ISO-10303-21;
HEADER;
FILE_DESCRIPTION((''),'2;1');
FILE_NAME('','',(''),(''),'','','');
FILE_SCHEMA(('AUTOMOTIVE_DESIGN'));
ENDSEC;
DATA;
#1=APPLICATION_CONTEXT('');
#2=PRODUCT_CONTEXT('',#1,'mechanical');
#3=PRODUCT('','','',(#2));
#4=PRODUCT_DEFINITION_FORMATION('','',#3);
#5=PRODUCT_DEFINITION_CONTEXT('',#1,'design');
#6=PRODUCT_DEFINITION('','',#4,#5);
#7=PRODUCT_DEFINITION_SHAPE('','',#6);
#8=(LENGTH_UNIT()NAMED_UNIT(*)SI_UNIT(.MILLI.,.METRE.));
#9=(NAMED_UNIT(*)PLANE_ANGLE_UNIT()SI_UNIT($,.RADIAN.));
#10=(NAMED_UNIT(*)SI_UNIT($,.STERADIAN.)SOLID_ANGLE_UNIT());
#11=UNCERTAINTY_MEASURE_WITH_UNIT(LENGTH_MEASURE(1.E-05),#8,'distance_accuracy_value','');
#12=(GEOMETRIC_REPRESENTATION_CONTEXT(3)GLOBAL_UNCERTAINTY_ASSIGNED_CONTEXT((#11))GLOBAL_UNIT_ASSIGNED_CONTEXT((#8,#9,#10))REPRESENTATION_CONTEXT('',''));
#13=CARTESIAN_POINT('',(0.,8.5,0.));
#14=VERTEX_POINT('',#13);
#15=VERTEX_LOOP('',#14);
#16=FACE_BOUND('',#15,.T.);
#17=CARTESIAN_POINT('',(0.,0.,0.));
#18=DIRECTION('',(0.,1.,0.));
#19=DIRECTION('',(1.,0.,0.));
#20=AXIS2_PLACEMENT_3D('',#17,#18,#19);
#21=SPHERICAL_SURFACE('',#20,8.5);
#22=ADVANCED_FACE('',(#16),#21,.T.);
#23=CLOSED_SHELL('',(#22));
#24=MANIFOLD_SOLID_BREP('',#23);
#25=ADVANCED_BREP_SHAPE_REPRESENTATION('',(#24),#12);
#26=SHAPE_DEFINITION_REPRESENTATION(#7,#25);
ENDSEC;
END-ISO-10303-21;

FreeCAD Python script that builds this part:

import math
import FreeCAD as App
import Part
import Sketcher

V = App.Vector

doc = App.newDocument("Part")
body = doc.addObject("PartDesign::Body", "Body")

# Sketch on XY plane
sketch1 = body.newObject("Sketcher::SketchObject", "Sketch")
sketch1.AttachmentSupport = (doc.getObject("XY_Plane"), [""])
sketch1.MapMode = "FlatFace"
sketch1.addGeometry(Part.LineSegment(V(0, 8, 0), V(0, -8, 0)), False)
sketch1.addGeometry(Part.ArcOfCircle(Part.Circle(V(0, 0, 0), V(0, 0, 1), 8), math.radians(-90), math.radians(90)), False)
sketch1.addConstraint(Sketcher.Constraint("Coincident", 0, 1, 1, 2))
sketch1.addConstraint(Sketcher.Constraint("Coincident", 1, 1, 0, 2))
sketch1.addConstraint(Sketcher.Constraint("Vertical", 0))
sketch1.addConstraint(Sketcher.Constraint("Coincident", 1, 3, -1, 1))
sketch1.addConstraint(Sketcher.Constraint("PointOnObject", 0, 1, -2))
sketch1.addConstraint(Sketcher.Constraint("Radius", 1, 8.5))
revolution = body.newObject("PartDesign::Revolution", "Revolution")
revolution.Profile = sketch1
revolution.ReferenceAxis = (sketch1, ["V_Axis"])
revolution.Angle = 360

doc.recompute()
